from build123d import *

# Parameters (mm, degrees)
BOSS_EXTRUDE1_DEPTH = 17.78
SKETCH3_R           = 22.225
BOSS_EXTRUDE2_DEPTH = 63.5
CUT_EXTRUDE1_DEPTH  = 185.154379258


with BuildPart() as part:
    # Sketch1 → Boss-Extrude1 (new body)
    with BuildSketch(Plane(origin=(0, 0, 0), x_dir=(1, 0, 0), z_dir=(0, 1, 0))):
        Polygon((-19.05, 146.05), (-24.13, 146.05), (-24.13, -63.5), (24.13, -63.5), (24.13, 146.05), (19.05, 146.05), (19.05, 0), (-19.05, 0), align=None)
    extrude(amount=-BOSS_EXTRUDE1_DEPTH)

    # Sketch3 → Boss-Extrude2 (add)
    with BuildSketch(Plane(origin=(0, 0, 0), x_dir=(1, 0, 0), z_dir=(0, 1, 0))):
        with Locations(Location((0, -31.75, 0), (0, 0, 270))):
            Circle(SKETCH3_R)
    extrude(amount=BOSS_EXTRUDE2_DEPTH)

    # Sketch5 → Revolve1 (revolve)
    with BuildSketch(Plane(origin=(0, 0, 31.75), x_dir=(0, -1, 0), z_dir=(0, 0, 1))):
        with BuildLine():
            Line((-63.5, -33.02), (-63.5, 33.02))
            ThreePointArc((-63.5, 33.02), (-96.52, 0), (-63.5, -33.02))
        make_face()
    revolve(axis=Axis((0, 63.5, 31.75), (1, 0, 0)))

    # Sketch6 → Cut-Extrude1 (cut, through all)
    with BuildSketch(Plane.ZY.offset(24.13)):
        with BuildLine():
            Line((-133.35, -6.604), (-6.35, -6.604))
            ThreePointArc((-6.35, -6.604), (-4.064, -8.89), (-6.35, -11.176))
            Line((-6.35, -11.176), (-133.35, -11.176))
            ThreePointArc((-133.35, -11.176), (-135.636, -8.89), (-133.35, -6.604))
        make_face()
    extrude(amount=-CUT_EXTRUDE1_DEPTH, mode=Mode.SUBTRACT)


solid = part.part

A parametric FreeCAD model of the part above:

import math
import FreeCAD as App
import Part
import Sketcher
Q = App.Units.Quantity

doc = App.newDocument("Part")
body = doc.addObject("PartDesign::Body", "Body")

# Sketch on XZ plane
sketch1 = body.newObject("Sketcher::SketchObject", "Sketch")
sketch1.AttachmentSupport = (doc.getObject("XZ_Plane"), [""])
sketch1.MapMode = "FlatFace"
sketch1.addGeometry([
    Part.LineSegment(App.Vector(-19.05, -146.05, 0), App.Vector(-24.13, -146.05, 0)),  # 0
    Part.LineSegment(App.Vector(-24.13, -146.05, 0), App.Vector(-24.13, 63.5, 0)),  # 1
    Part.LineSegment(App.Vector(-24.13, 63.5, 0), App.Vector(24.13, 63.5, 0)),  # 2
    Part.LineSegment(App.Vector(24.13, 63.5, 0), App.Vector(24.13, -146.05, 0)),  # 3
    Part.LineSegment(App.Vector(24.13, -146.05, 0), App.Vector(19.05, -146.05, 0)),  # 4
    Part.LineSegment(App.Vector(19.05, -146.05, 0), App.Vector(19.05, 0, 0)),  # 5
    Part.LineSegment(App.Vector(19.05, 0, 0), App.Vector(-19.05, 0, 0)),  # 6
    Part.LineSegment(App.Vector(-19.05, 0, 0), App.Vector(-19.05, -146.05, 0)),  # 7
], False)
sketch1.addConstraint([
    Sketcher.Constraint("Coincident", 0, 2, 1, 1),
    Sketcher.Constraint("Coincident", 1, 2, 2, 1),
    Sketcher.Constraint("Coincident", 2, 2, 3, 1),
    Sketcher.Constraint("Coincident", 3, 2, 4, 1),
    Sketcher.Constraint("Coincident", 4, 2, 5, 1),
    Sketcher.Constraint("Coincident", 5, 2, 6, 1),
    Sketcher.Constraint("Coincident", 6, 2, 7, 1),
    Sketcher.Constraint("Coincident", 7, 2, 0, 1),
    Sketcher.Constraint("Horizontal", 0),
    Sketcher.Constraint("Vertical", 1),
    Sketcher.Constraint("Horizontal", 2),
    Sketcher.Constraint("Vertical", 3),
    Sketcher.Constraint("Horizontal", 4),
    Sketcher.Constraint("Vertical", 5),
    Sketcher.Constraint("Horizontal", 6),
    Sketcher.Constraint("Vertical", 7),
    Sketcher.Constraint("Symmetric", 5, 2, 6, 2, -1, 1),
    Sketcher.Constraint("Symmetric", 0, 2, 3, 2, -2),
    Sketcher.Constraint("DistanceX", 0, 2, 0, 1, Q("0.2 in")),
    Sketcher.Constraint("DistanceX", 2, 1, 2, 2, Q("1.9 in")),
    Sketcher.Constraint("DistanceY", 1, 1, 1, 2, Q("8.25 in")),
    Sketcher.Constraint("DistanceY", 5, 1, 5, 2, Q("5.75 in")),
])
pad1 = body.newObject("PartDesign::Pad", "Pad")
pad1.Profile = sketch1
pad1.Length = Q("0.7 in")

# Sketch on XZ plane
sketch2 = body.newObject("Sketcher::SketchObject", "Sketch001")
sketch2.AttachmentSupport = (doc.getObject("XZ_Plane"), [""])
sketch2.MapMode = "FlatFace"
sketch2.addGeometry(Part.Circle(App.Vector(0, 31.75, 0), App.Vector(0, 0, 1), 22.225), False)
sketch2.addConstraint([
    Sketcher.Constraint("PointOnObject", 0, 3, -2),
    Sketcher.Constraint("Diameter", 0, Q("1.75 in")),
    Sketcher.Constraint("DistanceY", -1, 1, 0, 3, Q("1.25 in")),
])
pad2 = body.newObject("PartDesign::Pad", "Pad001")
pad2.Profile = sketch2
pad2.Length = Q("2.5 in")
pad2.Reversed = True

# Sketch on XY plane
sketch3 = body.newObject("Sketcher::SketchObject", "Sketch002")
sketch3.AttachmentSupport = (doc.getObject("XY_Plane"), [""])
sketch3.MapMode = "FlatFace"
sketch3.AttachmentOffset = App.Placement(App.Vector(0, 0, 1.25 * 25.4), App.Rotation())
sketch3.addGeometry([
    Part.LineSegment(App.Vector(-33.02, 63.5, 0), App.Vector(33.02, 63.5, 0)),
    Part.ArcOfCircle(Part.Circle(App.Vector(0, 63.5, 0), App.Vector(0, 0, 1), 33.02), math.radians(0), math.radians(180)),
], False)
sketch3.addGeometry(Part.LineSegment(App.Vector(-33.02, 63.5, 0), App.Vector(33.02, 63.5, 0)), True)  # axis
sketch3.addConstraint([
    Sketcher.Constraint("Coincident", 0, 1, 1, 2),
    Sketcher.Constraint("Coincident", 1, 1, 0, 2),
    Sketcher.Constraint("Horizontal", 0),
    Sketcher.Constraint("Horizontal", 2),
    Sketcher.Constraint("Coincident", 2, 1, 0, 1),
    Sketcher.Constraint("PointOnObject", 1, 3, -2),
    Sketcher.Constraint("Horizontal", 1, 3, 0, 1),
    Sketcher.Constraint("Equal", 0, 2),
    Sketcher.Constraint("Radius", 1, Q("1.3 in")),
    Sketcher.Constraint("DistanceY", -1, 1, 1, 3, Q("2.5 in")),
])
revolution = body.newObject("PartDesign::Revolution", "Revolution")
revolution.Profile = sketch3
revolution.ReferenceAxis = (sketch3, ["Axis0"])
revolution.Angle = 360

# Sketch on YZ plane
sketch4 = body.newObject("Sketcher::SketchObject", "Sketch003")
sketch4.AttachmentSupport = (doc.getObject("YZ_Plane"), [""])
sketch4.MapMode = "FlatFace"
sketch4.AttachmentOffset = App.Placement(App.Vector(0, 0, -0.95 * 25.4), App.Rotation())
sketch4.addGeometry([
    Part.LineSegment(App.Vector(-6.604, -6.35, 0), App.Vector(-6.604, -133.35, 0)),
    Part.ArcOfCircle(Part.Circle(App.Vector(-8.89, -133.35, 0), App.Vector(0, 0, 1), 2.286), math.radians(180), math.radians(360)),
    Part.LineSegment(App.Vector(-11.176, -133.35, 0), App.Vector(-11.176, -6.35, 0)),
    Part.ArcOfCircle(Part.Circle(App.Vector(-8.89, -6.35, 0), App.Vector(0, 0, 1), 2.286), math.radians(0), math.radians(180)),
], False)
sketch4.addConstraint([
    Sketcher.Constraint("Tangent", 0, 2, 1, 2),
    Sketcher.Constraint("Tangent", 1, 1, 2, 1),
    Sketcher.Constraint("Tangent", 2, 2, 3, 2),
    Sketcher.Constraint("Tangent", 3, 1, 0, 1),
    Sketcher.Constraint("Vertical", 0),
    Sketcher.Constraint("Vertical", 2),
    Sketcher.Constraint("DistanceY", 0, 2, 0, 1, Q("5 in")),
    Sketcher.Constraint("Radius", 1, Q("0.09 in")),
    Sketcher.Constraint("DistanceX", 1, 3, -1, 1, Q("0.35 in")),
    Sketcher.Constraint("DistanceY", 1, 3, -1, 1, Q("5.25 in")),
])
pocket1 = body.newObject("PartDesign::Pocket", "Pocket")
pocket1.Profile = sketch4
pocket1.Type = "ThroughAll"
pocket1.Reversed = True

doc.recompute()
